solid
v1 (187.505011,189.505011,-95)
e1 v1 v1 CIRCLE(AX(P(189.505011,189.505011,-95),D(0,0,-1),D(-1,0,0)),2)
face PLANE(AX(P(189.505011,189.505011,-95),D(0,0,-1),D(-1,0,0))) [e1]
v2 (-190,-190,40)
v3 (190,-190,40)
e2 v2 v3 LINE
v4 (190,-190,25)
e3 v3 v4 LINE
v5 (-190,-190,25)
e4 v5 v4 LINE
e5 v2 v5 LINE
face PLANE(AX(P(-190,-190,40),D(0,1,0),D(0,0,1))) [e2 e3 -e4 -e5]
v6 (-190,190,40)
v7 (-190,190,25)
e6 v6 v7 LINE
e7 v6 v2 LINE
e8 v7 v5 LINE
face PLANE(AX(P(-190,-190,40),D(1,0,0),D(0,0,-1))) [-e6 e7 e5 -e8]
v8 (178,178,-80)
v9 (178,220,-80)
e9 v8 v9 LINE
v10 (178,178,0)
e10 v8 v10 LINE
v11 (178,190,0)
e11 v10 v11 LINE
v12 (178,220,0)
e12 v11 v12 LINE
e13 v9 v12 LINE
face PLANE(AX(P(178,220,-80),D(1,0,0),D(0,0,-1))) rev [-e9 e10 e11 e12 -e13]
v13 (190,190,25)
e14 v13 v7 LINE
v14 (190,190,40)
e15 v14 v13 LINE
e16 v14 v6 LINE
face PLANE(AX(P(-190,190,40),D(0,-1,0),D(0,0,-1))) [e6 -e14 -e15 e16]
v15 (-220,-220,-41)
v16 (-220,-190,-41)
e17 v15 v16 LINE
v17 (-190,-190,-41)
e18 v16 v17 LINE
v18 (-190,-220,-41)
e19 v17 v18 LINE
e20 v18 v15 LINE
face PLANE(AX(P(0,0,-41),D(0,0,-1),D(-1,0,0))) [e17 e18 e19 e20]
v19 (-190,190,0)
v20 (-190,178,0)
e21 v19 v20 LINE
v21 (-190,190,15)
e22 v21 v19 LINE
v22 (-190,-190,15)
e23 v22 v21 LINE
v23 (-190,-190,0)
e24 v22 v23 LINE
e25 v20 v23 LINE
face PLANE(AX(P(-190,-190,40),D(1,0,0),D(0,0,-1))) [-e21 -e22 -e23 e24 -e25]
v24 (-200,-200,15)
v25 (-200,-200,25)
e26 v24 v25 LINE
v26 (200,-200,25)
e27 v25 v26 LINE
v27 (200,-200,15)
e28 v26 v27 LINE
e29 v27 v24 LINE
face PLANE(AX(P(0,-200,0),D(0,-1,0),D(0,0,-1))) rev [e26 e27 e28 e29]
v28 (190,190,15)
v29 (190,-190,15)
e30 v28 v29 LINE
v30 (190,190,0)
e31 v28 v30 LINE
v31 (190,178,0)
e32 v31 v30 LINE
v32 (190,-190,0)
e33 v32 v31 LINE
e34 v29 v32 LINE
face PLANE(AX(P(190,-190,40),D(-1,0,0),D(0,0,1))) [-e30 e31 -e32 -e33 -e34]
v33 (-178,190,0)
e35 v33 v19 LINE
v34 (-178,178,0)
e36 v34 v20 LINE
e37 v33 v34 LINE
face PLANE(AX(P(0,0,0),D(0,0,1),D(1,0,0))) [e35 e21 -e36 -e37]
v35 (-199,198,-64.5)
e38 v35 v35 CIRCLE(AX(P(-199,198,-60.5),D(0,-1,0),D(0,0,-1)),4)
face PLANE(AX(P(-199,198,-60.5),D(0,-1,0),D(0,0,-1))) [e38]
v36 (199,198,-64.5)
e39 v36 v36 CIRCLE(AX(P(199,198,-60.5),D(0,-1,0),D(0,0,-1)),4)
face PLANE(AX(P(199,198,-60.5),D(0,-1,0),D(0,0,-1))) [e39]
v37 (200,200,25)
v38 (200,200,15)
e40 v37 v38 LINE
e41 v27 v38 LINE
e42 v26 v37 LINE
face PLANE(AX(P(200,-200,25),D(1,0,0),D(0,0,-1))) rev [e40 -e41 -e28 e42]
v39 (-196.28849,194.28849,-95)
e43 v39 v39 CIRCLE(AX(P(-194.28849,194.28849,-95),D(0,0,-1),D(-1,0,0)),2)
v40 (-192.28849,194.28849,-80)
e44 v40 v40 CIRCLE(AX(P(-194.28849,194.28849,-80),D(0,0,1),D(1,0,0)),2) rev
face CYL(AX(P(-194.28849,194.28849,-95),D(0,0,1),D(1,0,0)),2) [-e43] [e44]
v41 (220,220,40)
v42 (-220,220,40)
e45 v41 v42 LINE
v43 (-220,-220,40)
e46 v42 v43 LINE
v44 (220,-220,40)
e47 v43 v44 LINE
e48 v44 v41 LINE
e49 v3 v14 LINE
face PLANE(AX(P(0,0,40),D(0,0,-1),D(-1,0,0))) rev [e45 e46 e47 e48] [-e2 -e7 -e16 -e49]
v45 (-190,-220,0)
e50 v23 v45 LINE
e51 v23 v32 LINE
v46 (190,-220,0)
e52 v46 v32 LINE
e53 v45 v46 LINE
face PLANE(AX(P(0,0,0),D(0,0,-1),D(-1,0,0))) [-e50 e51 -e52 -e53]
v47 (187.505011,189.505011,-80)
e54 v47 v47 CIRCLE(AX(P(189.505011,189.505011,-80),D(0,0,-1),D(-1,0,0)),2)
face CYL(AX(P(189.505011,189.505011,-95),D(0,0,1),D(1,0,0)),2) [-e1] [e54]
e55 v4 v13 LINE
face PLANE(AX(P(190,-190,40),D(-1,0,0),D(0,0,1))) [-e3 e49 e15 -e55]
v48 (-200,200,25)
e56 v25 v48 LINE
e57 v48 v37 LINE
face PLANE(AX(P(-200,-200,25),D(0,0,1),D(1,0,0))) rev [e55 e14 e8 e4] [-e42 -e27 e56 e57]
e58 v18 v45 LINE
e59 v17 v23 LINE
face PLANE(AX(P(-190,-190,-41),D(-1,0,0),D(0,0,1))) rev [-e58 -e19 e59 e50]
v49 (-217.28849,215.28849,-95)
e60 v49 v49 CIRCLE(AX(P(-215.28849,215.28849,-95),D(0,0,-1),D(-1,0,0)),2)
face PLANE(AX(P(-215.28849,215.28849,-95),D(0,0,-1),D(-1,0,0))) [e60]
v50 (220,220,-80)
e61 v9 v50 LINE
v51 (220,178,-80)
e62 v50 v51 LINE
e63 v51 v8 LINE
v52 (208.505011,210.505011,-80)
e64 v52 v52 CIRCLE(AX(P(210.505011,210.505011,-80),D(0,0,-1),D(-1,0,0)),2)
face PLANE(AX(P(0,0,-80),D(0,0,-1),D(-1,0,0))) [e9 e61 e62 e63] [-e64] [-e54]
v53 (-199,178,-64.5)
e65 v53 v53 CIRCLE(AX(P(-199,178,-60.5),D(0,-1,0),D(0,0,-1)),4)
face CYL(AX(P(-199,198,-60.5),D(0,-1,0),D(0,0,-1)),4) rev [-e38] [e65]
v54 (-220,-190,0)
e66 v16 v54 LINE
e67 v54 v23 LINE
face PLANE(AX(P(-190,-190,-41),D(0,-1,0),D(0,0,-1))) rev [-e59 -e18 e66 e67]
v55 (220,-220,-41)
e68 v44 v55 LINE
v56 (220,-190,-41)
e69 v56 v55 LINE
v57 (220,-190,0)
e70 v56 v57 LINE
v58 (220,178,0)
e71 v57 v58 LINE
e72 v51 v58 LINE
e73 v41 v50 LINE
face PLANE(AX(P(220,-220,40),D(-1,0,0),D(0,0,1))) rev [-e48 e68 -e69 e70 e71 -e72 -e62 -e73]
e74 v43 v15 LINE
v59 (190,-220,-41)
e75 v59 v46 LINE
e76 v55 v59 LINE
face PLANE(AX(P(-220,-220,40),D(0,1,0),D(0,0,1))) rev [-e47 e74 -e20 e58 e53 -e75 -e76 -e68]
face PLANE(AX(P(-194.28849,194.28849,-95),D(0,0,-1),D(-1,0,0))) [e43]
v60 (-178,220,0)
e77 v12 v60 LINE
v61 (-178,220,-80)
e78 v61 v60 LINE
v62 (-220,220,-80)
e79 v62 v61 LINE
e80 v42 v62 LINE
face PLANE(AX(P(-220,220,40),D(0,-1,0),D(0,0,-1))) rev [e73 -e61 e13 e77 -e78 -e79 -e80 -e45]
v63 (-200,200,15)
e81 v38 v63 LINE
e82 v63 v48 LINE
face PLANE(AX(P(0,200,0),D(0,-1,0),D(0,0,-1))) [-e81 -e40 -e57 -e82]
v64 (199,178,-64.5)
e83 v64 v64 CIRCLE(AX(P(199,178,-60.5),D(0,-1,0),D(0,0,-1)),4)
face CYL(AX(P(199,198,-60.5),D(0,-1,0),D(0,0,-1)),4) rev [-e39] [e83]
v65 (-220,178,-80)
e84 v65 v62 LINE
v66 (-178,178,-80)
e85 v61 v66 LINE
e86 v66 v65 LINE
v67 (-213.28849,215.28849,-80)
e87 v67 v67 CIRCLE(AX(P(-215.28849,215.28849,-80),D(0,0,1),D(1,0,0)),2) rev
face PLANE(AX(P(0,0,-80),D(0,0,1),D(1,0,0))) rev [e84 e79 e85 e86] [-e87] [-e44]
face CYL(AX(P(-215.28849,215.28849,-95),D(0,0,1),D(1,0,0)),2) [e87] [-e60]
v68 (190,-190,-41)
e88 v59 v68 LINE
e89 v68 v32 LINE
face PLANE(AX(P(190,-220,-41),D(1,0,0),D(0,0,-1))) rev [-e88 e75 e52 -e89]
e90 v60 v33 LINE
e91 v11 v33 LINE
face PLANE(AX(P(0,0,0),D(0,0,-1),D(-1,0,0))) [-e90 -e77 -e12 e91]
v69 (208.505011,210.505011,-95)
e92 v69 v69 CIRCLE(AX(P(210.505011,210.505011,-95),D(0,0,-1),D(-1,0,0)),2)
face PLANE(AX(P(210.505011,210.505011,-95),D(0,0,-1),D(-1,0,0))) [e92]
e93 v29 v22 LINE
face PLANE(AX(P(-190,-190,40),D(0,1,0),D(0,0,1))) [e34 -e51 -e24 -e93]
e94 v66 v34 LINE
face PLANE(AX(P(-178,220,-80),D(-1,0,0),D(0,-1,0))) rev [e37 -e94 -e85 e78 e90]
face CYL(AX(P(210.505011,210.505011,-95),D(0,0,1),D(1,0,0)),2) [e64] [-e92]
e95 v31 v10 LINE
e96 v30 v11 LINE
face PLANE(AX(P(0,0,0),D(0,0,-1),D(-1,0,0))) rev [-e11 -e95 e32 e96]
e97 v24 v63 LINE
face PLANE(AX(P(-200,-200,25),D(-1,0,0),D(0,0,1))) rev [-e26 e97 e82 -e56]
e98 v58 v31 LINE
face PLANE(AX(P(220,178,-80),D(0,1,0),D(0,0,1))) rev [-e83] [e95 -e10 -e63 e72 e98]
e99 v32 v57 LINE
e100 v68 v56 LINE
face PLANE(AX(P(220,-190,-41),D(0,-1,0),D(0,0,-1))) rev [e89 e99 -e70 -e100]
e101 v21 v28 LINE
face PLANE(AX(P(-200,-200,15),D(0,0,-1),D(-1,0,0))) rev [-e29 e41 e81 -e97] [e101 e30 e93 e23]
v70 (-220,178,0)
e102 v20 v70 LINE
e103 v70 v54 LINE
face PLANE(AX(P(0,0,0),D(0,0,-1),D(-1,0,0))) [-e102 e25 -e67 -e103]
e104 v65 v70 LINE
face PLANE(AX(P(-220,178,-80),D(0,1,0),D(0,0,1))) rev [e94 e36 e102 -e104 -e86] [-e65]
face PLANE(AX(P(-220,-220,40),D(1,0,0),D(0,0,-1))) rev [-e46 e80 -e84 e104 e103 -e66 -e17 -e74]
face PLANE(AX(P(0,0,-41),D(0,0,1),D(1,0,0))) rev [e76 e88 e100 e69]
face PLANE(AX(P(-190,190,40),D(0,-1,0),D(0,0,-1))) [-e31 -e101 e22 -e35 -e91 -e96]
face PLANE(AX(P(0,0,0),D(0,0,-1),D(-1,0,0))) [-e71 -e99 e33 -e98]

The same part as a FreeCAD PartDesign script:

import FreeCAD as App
import Part
import Sketcher
Q = App.Units.Quantity


def add_polygon(sketch, points):
    """Adds a closed chain of lines whose ends are joined by coincident constraints."""
    first, n = sketch.GeometryCount, len(points)
    for a, b in zip(points, points[1:] + points[:1]):
        sketch.addGeometry(Part.LineSegment(App.Vector(*a, 0), App.Vector(*b, 0)), False)
    for i in range(n):
        sketch.addConstraint(Sketcher.Constraint("Coincident", first + i, 2, first + (i + 1) % n, 1))

doc = App.newDocument("Part")
body = doc.addObject("PartDesign::Body", "Body")

# Sketch on XY plane
sketch1 = body.newObject("Sketcher::SketchObject", "Sketch")
sketch1.AttachmentSupport = (doc.getObject("XY_Plane"), [""])
sketch1.MapMode = "FlatFace"
add_polygon(sketch1, [(-220, 220), (-220, -220), (220, -220), (220, 220)])  # lines 0-3
add_polygon(sketch1, [(190, -190), (-190, -190), (-190, 190), (190, 190)])  # lines 4-7
sketch1.addConstraint([
    Sketcher.Constraint("Vertical", 0),
    Sketcher.Constraint("Horizontal", 1),
    Sketcher.Constraint("Vertical", 2),
    Sketcher.Constraint("Horizontal", 3),
    Sketcher.Constraint("Horizontal", 4),
    Sketcher.Constraint("Vertical", 5),
    Sketcher.Constraint("Horizontal", 6),
    Sketcher.Constraint("Vertical", 7),
    Sketcher.Constraint("Symmetric", 0, 2, 2, 2, -1, 1),
    Sketcher.Constraint("Symmetric", 4, 2, 6, 2, -1, 1),
    Sketcher.Constraint("Equal", 3, 0),
    Sketcher.Constraint("Equal", 6, 5),
    Sketcher.Constraint("DistanceX", 1, 1, 1, 2, Q("440 mm")),
    Sketcher.Constraint("DistanceX", 4, 2, 4, 1, Q("380 mm")),
])
pad1 = body.newObject("PartDesign::Pad", "Pad")
pad1.Profile = sketch1
pad1.Length = 40

# Sketch on XZ plane
sketch2 = body.newObject("Sketcher::SketchObject", "Sketch001")
sketch2.AttachmentSupport = (doc.getObject("XZ_Plane"), [""])
sketch2.MapMode = "FlatFace"
sketch2.AttachmentOffset = App.Placement(App.Vector(0, 0, 190), App.Rotation())
add_polygon(sketch2, [(-200, 15), (-200, 25), (200, 25), (200, 15)])  # lines 0-3
sketch2.addConstraint([
    Sketcher.Constraint("Vertical", 0),
    Sketcher.Constraint("Horizontal", 1),
    Sketcher.Constraint("Vertical", 2),
    Sketcher.Constraint("Horizontal", 3),
    Sketcher.Constraint("DistanceX", 1, 1, 1, 2, Q("400 mm")),
    Sketcher.Constraint("DistanceY", 0, 1, 0, 2, Q("10 mm")),
    Sketcher.Constraint("DistanceX", 0, 2, -1, 1, Q("200 mm")),
    Sketcher.Constraint("DistanceY", -1, 1, 0, 2, Q("25 mm")),
])
pocket1 = body.newObject("PartDesign::Pocket", "Pocket")
pocket1.Profile = sketch2
pocket1.Type = "TwoLengths"
pocket1.Length = 390
pocket1.Length2 = 10

# Sketch on XY plane
sketch3 = body.newObject("Sketcher::SketchObject", "Sketch002")
sketch3.AttachmentSupport = (doc.getObject("XY_Plane"), [""])
sketch3.MapMode = "FlatFace"
add_polygon(sketch3, [(220, 220), (220, 178), (178, 178), (178, 220)])  # lines 0-3
add_polygon(sketch3, [(-178, 220), (-178, 178), (-220, 178), (-220, 220)])  # lines 4-7
sketch3.addConstraint([
    Sketcher.Constraint("Vertical", 0),
    Sketcher.Constraint("Horizontal", 1),
    Sketcher.Constraint("Vertical", 2),
    Sketcher.Constraint("Horizontal", 3),
    Sketcher.Constraint("Vertical", 4),
    Sketcher.Constraint("Horizontal", 5),
    Sketcher.Constraint("Vertical", 6),
    Sketcher.Constraint("Horizontal", 7),
    Sketcher.Constraint("Symmetric", 1, 2, 4, 2, -2),
    Sketcher.Constraint("Symmetric", 3, 2, 6, 2, -2),
    Sketcher.Constraint("Equal", 7, 0),
    Sketcher.Constraint("DistanceX", 1, 2, 1, 1, Q("42 mm")),
    Sketcher.Constraint("DistanceX", -1, 1, 0, 2, Q("220 mm")),
    Sketcher.Constraint("DistanceY", -1, 1, 0, 2, Q("178 mm")),
])
pad2 = body.newObject("PartDesign::Pad", "Pad001")
pad2.Profile = sketch3
pad2.Length = 80
pad2.Reversed = True

# Sketch on XY plane
sketch4 = body.newObject("Sketcher::SketchObject", "Sketch003")
sketch4.AttachmentSupport = (doc.getObject("XY_Plane"), [""])
sketch4.MapMode = "FlatFace"
sketch4.AttachmentOffset = App.Placement(App.Vector(0, 0, -80), App.Rotation())
sketch4.addGeometry([
    Part.Circle(App.Vector(210.5, 210.5, 0), App.Vector(0, 0, 1), 2),
    Part.Circle(App.Vector(189.5, 189.5, 0), App.Vector(0, 0, 1), 2),
    Part.Circle(App.Vector(-215.3, 215.3, 0), App.Vector(0, 0, 1), 2),
    Part.Circle(App.Vector(-194.3, 194.3, 0), App.Vector(0, 0, 1), 2),
], False)
sketch4.addConstraint([
    Sketcher.Constraint("Equal", 0, 1),
    Sketcher.Constraint("Equal", 1, 2),
    Sketcher.Constraint("Equal", 2, 3),
    Sketcher.Constraint("Diameter", 0, Q("4 mm")),
    Sketcher.Constraint("DistanceX", 1, 3, 0, 3, Q("21 mm")),
    Sketcher.Constraint("DistanceY", 1, 3, 0, 3, Q("21 mm")),
    Sketcher.Constraint("DistanceX", 2, 3, 3, 3, Q("21 mm")),
    Sketcher.Constraint("DistanceY", 3, 3, 2, 3, Q("21 mm")),
    Sketcher.Constraint("DistanceX", 2, 3, 1, 3, Q("404.793501 mm")),
    Sketcher.Constraint("DistanceX", -1, 1, 0, 3, Q("210.505011 mm")),
    Sketcher.Constraint("DistanceY", -1, 1, 0, 3, Q("210.505011 mm")),
    Sketcher.Constraint("DistanceY", -1, 1, 2, 3, Q("215.28849 mm")),
])
pad3 = body.newObject("PartDesign::Pad", "Pad002")
pad3.Profile = sketch4
pad3.Length = 15
pad3.Reversed = True

# Sketch on XZ plane
sketch5 = body.newObject("Sketcher::SketchObject", "Sketch004")
sketch5.AttachmentSupport = (doc.getObject("XZ_Plane"), [""])
sketch5.MapMode = "FlatFace"
sketch5.AttachmentOffset = App.Placement(App.Vector(0, 0, -178), App.Rotation())
sketch5.addGeometry([
    Part.Circle(App.Vector(199, -60.5, 0), App.Vector(0, 0, 1), 4),
    Part.Circle(App.Vector(-199, -60.5, 0), App.Vector(0, 0, 1), 4),
], False)
sketch5.addConstraint([
    Sketcher.Constraint("Equal", 0, 1),
    Sketcher.Constraint("Symmetric", 0, 3, 1, 3, -2),
    Sketcher.Constraint("Diameter", 0, Q("8 mm")),
    Sketcher.Constraint("DistanceX", -1, 1, 0, 3, Q("199 mm")),
    Sketcher.Constraint("DistanceY", 0, 3, -1, 1, Q("60.5 mm")),
])
pocket2 = body.newObject("PartDesign::Pocket", "Pocket001")
pocket2.Profile = sketch5
pocket2.Length = 20

# Sketch on XY plane
sketch6 = body.newObject("Sketcher::SketchObject", "Sketch005")
sketch6.AttachmentSupport = (doc.getObject("XY_Plane"), [""])
sketch6.MapMode = "FlatFace"
add_polygon(sketch6, [(220, -190), (220, -220), (190, -220), (190, -190)])  # lines 0-3
add_polygon(sketch6, [(-190, -190), (-190, -220), (-220, -220), (-220, -190)])  # lines 4-7
sketch6.addConstraint([
    Sketcher.Constraint("Vertical", 0),
    Sketcher.Constraint("Horizontal", 1),
    Sketcher.Constraint("Vertical", 2),
    Sketcher.Constraint("Horizontal", 3),
    Sketcher.Constraint("Vertical", 4),
    Sketcher.Constraint("Horizontal", 5),
    Sketcher.Constraint("Vertical", 6),
    Sketcher.Constraint("Horizontal", 7),
    Sketcher.Constraint("Symmetric", 1, 2, 4, 2, -2),
    Sketcher.Constraint("Symmetric", 3, 2, 6, 2, -2),
    Sketcher.Constraint("Equal", 7, 0),
    Sketcher.Constraint("DistanceX", 1, 2, 1, 1, Q("30 mm")),
    Sketcher.Constraint("DistanceX", -1, 1, 0, 2, Q("220 mm")),
    Sketcher.Constraint("DistanceY", 0, 2, -1, 1, Q("220 mm")),
])
pad4 = body.newObject("PartDesign::Pad", "Pad003")
pad4.Profile = sketch6
pad4.Length = 41
pad4.Reversed = True

doc.recompute()
